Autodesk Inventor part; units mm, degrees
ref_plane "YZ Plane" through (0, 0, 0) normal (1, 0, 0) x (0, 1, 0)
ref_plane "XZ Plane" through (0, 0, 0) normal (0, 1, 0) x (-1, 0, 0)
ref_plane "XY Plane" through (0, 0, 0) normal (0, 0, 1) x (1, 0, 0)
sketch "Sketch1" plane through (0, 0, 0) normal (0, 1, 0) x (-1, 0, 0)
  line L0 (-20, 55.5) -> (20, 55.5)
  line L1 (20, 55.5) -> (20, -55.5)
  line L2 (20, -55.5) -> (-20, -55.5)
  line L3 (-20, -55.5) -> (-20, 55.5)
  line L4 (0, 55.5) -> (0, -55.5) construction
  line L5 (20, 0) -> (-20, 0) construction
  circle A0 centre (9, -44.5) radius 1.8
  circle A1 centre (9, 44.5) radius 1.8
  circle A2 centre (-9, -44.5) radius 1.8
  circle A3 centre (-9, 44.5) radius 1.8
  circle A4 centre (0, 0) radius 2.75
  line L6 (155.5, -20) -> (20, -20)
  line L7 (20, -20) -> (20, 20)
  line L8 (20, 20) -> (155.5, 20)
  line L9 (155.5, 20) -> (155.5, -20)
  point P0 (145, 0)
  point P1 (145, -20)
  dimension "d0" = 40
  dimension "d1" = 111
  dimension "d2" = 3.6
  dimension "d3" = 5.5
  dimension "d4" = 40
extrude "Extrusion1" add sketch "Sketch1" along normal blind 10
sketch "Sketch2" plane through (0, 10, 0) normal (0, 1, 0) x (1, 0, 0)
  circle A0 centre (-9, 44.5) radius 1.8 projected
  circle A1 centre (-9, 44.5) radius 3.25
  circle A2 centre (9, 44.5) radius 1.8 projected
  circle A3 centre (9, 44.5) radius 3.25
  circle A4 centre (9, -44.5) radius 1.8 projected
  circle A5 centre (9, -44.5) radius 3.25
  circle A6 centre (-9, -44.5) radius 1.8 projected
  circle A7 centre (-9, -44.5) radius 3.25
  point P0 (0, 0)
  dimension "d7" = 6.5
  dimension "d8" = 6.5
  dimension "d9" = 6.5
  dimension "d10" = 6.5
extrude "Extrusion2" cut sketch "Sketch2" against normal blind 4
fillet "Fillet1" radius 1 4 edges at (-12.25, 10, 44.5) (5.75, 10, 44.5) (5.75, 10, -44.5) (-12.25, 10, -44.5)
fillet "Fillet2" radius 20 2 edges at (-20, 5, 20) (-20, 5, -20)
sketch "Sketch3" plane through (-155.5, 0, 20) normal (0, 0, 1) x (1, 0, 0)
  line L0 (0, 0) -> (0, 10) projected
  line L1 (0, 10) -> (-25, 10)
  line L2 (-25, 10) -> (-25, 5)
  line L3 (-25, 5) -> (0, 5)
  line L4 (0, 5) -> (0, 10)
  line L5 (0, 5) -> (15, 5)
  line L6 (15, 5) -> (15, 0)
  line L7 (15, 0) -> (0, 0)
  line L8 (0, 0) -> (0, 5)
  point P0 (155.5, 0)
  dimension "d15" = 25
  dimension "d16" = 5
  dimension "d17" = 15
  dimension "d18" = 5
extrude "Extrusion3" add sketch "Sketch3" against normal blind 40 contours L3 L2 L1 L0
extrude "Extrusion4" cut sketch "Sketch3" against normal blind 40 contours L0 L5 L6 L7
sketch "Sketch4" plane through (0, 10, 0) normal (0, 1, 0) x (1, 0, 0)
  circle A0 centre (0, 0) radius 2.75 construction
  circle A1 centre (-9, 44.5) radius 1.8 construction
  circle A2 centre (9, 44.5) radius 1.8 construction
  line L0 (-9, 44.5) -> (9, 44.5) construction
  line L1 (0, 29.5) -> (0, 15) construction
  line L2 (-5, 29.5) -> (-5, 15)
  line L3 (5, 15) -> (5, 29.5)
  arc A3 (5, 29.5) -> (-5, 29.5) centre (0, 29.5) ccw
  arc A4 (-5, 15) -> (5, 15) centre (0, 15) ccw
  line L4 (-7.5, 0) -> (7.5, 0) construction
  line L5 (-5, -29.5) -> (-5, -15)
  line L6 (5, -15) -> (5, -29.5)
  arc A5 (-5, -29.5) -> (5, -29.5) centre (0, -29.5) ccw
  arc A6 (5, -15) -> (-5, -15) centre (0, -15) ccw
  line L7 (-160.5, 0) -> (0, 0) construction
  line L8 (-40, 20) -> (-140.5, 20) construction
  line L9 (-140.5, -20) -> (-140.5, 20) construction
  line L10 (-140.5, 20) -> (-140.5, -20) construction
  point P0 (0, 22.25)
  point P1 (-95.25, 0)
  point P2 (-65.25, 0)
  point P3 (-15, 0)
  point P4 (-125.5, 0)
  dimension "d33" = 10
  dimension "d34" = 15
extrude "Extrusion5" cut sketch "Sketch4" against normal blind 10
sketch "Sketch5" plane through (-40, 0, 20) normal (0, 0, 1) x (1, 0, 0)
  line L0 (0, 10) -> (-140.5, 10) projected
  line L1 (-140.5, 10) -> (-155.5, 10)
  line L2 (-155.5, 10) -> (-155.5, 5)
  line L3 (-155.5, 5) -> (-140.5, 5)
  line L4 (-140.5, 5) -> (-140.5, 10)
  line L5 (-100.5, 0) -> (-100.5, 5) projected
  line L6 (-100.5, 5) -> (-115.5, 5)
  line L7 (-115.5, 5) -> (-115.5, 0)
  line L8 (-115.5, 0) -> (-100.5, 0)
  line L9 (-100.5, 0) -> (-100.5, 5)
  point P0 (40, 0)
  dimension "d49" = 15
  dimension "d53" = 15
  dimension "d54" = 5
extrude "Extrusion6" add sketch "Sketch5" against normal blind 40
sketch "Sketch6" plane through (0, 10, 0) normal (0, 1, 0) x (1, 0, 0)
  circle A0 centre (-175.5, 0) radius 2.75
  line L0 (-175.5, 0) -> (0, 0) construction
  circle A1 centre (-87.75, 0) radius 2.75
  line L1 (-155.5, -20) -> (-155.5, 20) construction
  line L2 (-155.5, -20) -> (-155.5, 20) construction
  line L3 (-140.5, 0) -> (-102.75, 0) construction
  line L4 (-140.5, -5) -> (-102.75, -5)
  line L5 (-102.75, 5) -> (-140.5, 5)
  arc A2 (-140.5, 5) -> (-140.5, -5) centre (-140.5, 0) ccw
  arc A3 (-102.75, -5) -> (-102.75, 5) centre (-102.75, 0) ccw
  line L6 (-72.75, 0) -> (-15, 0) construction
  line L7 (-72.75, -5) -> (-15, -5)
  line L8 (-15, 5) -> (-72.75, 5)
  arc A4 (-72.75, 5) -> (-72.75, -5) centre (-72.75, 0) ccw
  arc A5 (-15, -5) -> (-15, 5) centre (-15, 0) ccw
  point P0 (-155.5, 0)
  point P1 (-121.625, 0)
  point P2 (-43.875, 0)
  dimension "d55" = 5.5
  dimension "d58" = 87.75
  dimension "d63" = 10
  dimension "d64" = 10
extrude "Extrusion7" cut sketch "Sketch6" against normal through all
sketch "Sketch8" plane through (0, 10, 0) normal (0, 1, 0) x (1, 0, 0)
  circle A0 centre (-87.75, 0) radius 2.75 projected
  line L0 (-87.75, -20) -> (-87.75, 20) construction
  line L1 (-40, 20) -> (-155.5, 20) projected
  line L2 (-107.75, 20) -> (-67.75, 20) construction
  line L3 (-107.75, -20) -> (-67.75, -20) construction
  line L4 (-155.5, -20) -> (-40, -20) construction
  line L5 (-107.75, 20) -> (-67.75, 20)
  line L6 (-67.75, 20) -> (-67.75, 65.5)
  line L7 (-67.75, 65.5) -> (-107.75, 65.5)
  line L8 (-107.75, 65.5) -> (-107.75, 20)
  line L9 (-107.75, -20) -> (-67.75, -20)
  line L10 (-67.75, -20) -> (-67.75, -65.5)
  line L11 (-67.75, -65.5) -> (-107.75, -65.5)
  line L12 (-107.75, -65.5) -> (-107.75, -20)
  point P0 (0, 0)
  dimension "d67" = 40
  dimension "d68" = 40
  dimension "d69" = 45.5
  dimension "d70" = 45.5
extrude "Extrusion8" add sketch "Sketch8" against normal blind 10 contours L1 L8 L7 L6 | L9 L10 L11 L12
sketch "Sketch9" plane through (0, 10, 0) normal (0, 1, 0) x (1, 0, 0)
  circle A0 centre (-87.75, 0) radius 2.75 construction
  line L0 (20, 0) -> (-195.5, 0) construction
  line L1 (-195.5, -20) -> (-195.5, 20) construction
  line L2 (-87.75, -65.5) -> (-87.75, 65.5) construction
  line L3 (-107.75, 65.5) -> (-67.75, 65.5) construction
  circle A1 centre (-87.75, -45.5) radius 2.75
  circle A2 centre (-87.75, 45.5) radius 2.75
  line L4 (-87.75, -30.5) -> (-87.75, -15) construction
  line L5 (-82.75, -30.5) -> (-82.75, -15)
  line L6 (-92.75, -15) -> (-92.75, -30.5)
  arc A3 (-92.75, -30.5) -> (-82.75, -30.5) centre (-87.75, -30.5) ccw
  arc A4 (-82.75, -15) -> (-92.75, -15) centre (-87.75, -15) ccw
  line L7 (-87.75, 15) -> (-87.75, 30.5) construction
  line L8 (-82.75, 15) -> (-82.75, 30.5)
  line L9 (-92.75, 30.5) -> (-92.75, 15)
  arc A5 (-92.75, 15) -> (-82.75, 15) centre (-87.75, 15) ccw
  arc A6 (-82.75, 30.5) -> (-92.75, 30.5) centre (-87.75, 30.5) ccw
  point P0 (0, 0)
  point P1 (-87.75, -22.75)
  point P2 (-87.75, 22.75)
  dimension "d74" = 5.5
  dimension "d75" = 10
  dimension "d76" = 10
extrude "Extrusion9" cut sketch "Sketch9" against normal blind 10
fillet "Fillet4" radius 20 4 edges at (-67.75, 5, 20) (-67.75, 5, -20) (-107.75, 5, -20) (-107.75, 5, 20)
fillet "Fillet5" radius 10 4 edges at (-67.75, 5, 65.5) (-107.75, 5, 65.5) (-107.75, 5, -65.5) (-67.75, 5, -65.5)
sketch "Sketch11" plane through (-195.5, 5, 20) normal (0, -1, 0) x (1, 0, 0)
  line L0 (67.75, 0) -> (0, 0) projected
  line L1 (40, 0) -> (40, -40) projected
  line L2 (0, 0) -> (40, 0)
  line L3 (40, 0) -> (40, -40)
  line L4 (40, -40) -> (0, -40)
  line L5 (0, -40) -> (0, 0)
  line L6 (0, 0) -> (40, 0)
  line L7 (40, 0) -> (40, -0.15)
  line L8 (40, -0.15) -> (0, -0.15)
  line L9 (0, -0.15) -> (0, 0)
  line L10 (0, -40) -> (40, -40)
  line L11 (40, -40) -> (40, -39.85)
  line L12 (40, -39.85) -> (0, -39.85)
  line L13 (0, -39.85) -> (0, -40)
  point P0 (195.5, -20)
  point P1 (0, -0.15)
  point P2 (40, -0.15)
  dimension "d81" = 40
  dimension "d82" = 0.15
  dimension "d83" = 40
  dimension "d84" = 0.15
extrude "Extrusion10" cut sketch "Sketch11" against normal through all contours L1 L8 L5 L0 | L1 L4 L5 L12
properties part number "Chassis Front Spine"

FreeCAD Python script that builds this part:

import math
import FreeCAD as App
import Part
import Sketcher


def edges_at(feature, points):
    """Names of the edges that pass closest to the given points."""
    edges = feature.Shape.Edges
    near = lambda p: min(range(len(edges)), key=lambda i: edges[i].distToShape(Part.Vertex(*p))[0])
    return sorted({f"Edge{near(p) + 1}" for p in points})

doc = App.newDocument("Part")
params = doc.addObject("Spreadsheet::Sheet", "Params")
for row, (alias, value) in enumerate([
    ("sketch1_diameter", "3.6 mm"),
    ("sketch1_diameter2", "5.5 mm"),
    ("sketch1_width", "40 mm"),
    ("sketch1_height", "111 mm"),
    ("sketch1_width2", "135.5 mm"),
    ("pad1_length", "10 mm"),
    ("sketch2_diameter", "6.5 mm"),
    ("sketch2_diameter2", "3.6 mm"),
    ("pocket1_length", "4 mm"),
    ("fillet_radius", "1 mm"),
    ("fillet2_radius", "20 mm"),
    ("sketch3_width", "25 mm"),
    ("sketch3_height", "5 mm"),
    ("pad2_length", "40 mm"),
    ("sketch4_width", "15 mm"),
    ("sketch4_height", "5 mm"),
    ("pocket2_length", "40 mm"),
    ("sketch5_radius", "5 mm"),
    ("sketch5_height", "14.5 mm"),
    ("pocket3_length", "10 mm"),
    ("sketch6_width", "15 mm"),
    ("sketch6_height", "5 mm"),
    ("pad3_length", "40 mm"),
    ("sketch7_radius", "5 mm"),
    ("sketch7_diameter", "5.5 mm"),
    ("sketch8_width", "40 mm"),
    ("sketch8_height", "45.5 mm"),
    ("pad4_length", "10 mm"),
    ("sketch9_radius", "5 mm"),
    ("sketch9_diameter", "5.5 mm"),
    ("sketch9_height", "15.5 mm"),
    ("pocket5_length", "10 mm"),
    ("fillet3_radius", "20 mm"),
    ("fillet4_radius", "10 mm"),
    ("sketch10_width", "40 mm"),
    ("sketch10_height", "0.15 mm"),
], start=1):
    params.set(f"A{row}", alias)
    params.set(f"B{row}", "=" + value)
    params.setAlias(f"B{row}", alias)

body = doc.addObject("PartDesign::Body", "Body")

sketch1 = doc.addObject("Sketcher::SketchObject", "Sketch")
body.addObject(sketch1)
sketch1.AttachmentSupport = (doc.XZ_Plane, [""])
sketch1.MapMode = "FlatFace"
sketch1.addGeometry(Part.LineSegment(App.Vector(-20, 55.5, 0), App.Vector(20, 55.5, 0)), False)
sketch1.addGeometry(Part.LineSegment(App.Vector(20, 55.5, 0), App.Vector(20, -55.5, 0)), False)
sketch1.addGeometry(Part.LineSegment(App.Vector(20, -55.5, 0), App.Vector(-20, -55.5, 0)), False)
sketch1.addGeometry(Part.LineSegment(App.Vector(-20, -55.5, 0), App.Vector(-20, -20, 0)), False)
sketch1.addGeometry(Part.LineSegment(App.Vector(-20, -20, 0), App.Vector(-155.5, -20, 0)), False)
sketch1.addGeometry(Part.LineSegment(App.Vector(-155.5, -20, 0), App.Vector(-155.5, 20, 0)), False)
sketch1.addGeometry(Part.LineSegment(App.Vector(-155.5, 20, 0), App.Vector(-20, 20, 0)), False)
sketch1.addGeometry(Part.LineSegment(App.Vector(-20, 20, 0), App.Vector(-20, 55.5, 0)), False)
sketch1.addGeometry(Part.Circle(App.Vector(9, -44.5, 0), App.Vector(0, 0, 1), 1.8), False)
sketch1.addGeometry(Part.Circle(App.Vector(-9, -44.5, 0), App.Vector(0, 0, 1), 1.8), False)
sketch1.addGeometry(Part.Circle(App.Vector(0, 0, 0), App.Vector(0, 0, 1), 2.8), False)
sketch1.addGeometry(Part.Circle(App.Vector(9, 44.5, 0), App.Vector(0, 0, 1), 1.8), False)
sketch1.addGeometry(Part.Circle(App.Vector(-9, 44.5, 0), App.Vector(0, 0, 1), 1.8), False)
sketch1.addConstraint(Sketcher.Constraint("Coincident", 0, 2, 1, 1))
sketch1.addConstraint(Sketcher.Constraint("Coincident", 1, 2, 2, 1))
sketch1.addConstraint(Sketcher.Constraint("Coincident", 2, 2, 3, 1))
sketch1.addConstraint(Sketcher.Constraint("Coincident", 3, 2, 4, 1))
sketch1.addConstraint(Sketcher.Constraint("Coincident", 4, 2, 5, 1))
sketch1.addConstraint(Sketcher.Constraint("Coincident", 5, 2, 6, 1))
sketch1.addConstraint(Sketcher.Constraint("Coincident", 6, 2, 7, 1))
sketch1.addConstraint(Sketcher.Constraint("Coincident", 7, 2, 0, 1))
sketch1.addConstraint(Sketcher.Constraint("Horizontal", 0))
sketch1.addConstraint(Sketcher.Constraint("Vertical", 1))
sketch1.addConstraint(Sketcher.Constraint("Horizontal", 2))
sketch1.addConstraint(Sketcher.Constraint("Vertical", 3))
sketch1.addConstraint(Sketcher.Constraint("Horizontal", 4))
sketch1.addConstraint(Sketcher.Constraint("Vertical", 5))
sketch1.addConstraint(Sketcher.Constraint("Horizontal", 6))
sketch1.addConstraint(Sketcher.Constraint("Vertical", 7))
sketch1.addConstraint(Sketcher.Constraint("Coincident", 10, 3, -1, 1))
sketch1.addConstraint(Sketcher.Constraint("Equal", 8, 9))
sketch1.addConstraint(Sketcher.Constraint("Equal", 9, 11))
sketch1.addConstraint(Sketcher.Constraint("Equal", 11, 12))
sketch1.addConstraint(Sketcher.Constraint("Symmetric", 9, 3, 11, 3, -1, 1))
sketch1.addConstraint(Sketcher.Constraint("Symmetric", 8, 3, 12, 3, -1, 1))
sketch1.addConstraint(Sketcher.Constraint("Symmetric", 0, 2, 2, 2, -1, 1))
sketch1.addConstraint(Sketcher.Constraint("Symmetric", 8, 3, 9, 3, -2))
sketch1.addConstraint(Sketcher.Constraint("Symmetric", 3, 2, 6, 2, -1))
sketch1.addConstraint(Sketcher.Constraint("Equal", 2, 5))
sketch1.addConstraint(Sketcher.Constraint("Diameter", 8, 3.6))
sketch1.addConstraint(Sketcher.Constraint("Diameter", 10, 5.5))
sketch1.addConstraint(Sketcher.Constraint("DistanceX", 0, 1, 0, 2, 40.0))
sketch1.addConstraint(Sketcher.Constraint("DistanceY", 1, 2, 1, 1, 111.0))
sketch1.addConstraint(Sketcher.Constraint("DistanceX", 4, 2, 4, 1, 135.5))
sketch1.addConstraint(Sketcher.Constraint("DistanceX", -1, 1, 8, 3, 9.0))
sketch1.addConstraint(Sketcher.Constraint("DistanceY", 8, 3, 11, 3, 89.0))
sketch1.setExpression("Constraints[26]", "Params.sketch1_diameter")
sketch1.setExpression("Constraints[27]", "Params.sketch1_diameter2")
sketch1.setExpression("Constraints[28]", "Params.sketch1_width")
sketch1.setExpression("Constraints[29]", "Params.sketch1_height")
sketch1.setExpression("Constraints[30]", "Params.sketch1_width2")
pad1 = doc.addObject("PartDesign::Pad", "Pad")
body.addObject(pad1)
pad1.Profile = sketch1
pad1.setExpression("Length", "Params.pad1_length")
pad1.Reversed = True

sketch2 = doc.addObject("Sketcher::SketchObject", "Sketch001")
body.addObject(sketch2)
sketch2.AttachmentSupport = (doc.XZ_Plane, [""])
sketch2.MapMode = "FlatFace"
sketch2.AttachmentOffset = App.Placement(App.Vector(0, 0, -10), App.Rotation())
sketch2.addGeometry(Part.Circle(App.Vector(-9, -44.5, 0), App.Vector(0, 0, 1), 3.2), False)
sketch2.addGeometry(Part.Circle(App.Vector(-9, -44.5, 0), App.Vector(0, 0, 1), 1.8), False)
sketch2.addGeometry(Part.Circle(App.Vector(9, -44.5, 0), App.Vector(0, 0, 1), 3.2), False)
sketch2.addGeometry(Part.Circle(App.Vector(9, -44.5, 0), App.Vector(0, 0, 1), 1.8), False)
sketch2.addGeometry(Part.Circle(App.Vector(9, 44.5, 0), App.Vector(0, 0, 1), 3.2), False)
sketch2.addGeometry(Part.Circle(App.Vector(9, 44.5, 0), App.Vector(0, 0, 1), 1.8), False)
sketch2.addGeometry(Part.Circle(App.Vector(-9, 44.5, 0), App.Vector(0, 0, 1), 3.2), False)
sketch2.addGeometry(Part.Circle(App.Vector(-9, 44.5, 0), App.Vector(0, 0, 1), 1.8), False)
sketch2.addConstraint(Sketcher.Constraint("Coincident", 1, 3, 0, 3))
sketch2.addConstraint(Sketcher.Constraint("Coincident", 3, 3, 2, 3))
sketch2.addConstraint(Sketcher.Constraint("Coincident", 5, 3, 4, 3))
sketch2.addConstraint(Sketcher.Constraint("Coincident", 7, 3, 6, 3))
sketch2.addConstraint(Sketcher.Constraint("Equal", 0, 2))
sketch2.addConstraint(Sketcher.Constraint("Equal", 1, 3))
sketch2.addConstraint(Sketcher.Constraint("Equal", 2, 4))
sketch2.addConstraint(Sketcher.Constraint("Equal", 3, 5))
sketch2.addConstraint(Sketcher.Constraint("Equal", 4, 6))
sketch2.addConstraint(Sketcher.Constraint("Equal", 5, 7))
sketch2.addConstraint(Sketcher.Constraint("Symmetric", 0, 3, 4, 3, -1, 1))
sketch2.addConstraint(Sketcher.Constraint("Symmetric", 2, 3, 6, 3, -1, 1))
sketch2.addConstraint(Sketcher.Constraint("Symmetric", 0, 3, 2, 3, -2))
sketch2.addConstraint(Sketcher.Constraint("Diameter", 0, 6.5))
sketch2.addConstraint(Sketcher.Constraint("Diameter", 1, 3.6))
sketch2.addConstraint(Sketcher.Constraint("DistanceX", 0, 3, -1, 1, 9.0))
sketch2.addConstraint(Sketcher.Constraint("DistanceY", 2, 3, 4, 3, 89.0))
sketch2.setExpression("Constraints[13]", "Params.sketch2_diameter")
sketch2.setExpression("Constraints[14]", "Params.sketch2_diameter2")
pocket1 = doc.addObject("PartDesign::Pocket", "Pocket")
body.addObject(pocket1)
pocket1.Profile = sketch2
pocket1.setExpression("Length", "Params.pocket1_length")
pocket1.Reversed = True
doc.recompute()

fillet = doc.addObject("PartDesign::Fillet", "Fillet")
body.addObject(fillet)
fillet.Base = (pocket1, edges_at(pocket1, [
    (-12.25, 10, 44.5),
    (5.75, 10, 44.5),
    (5.75, 10, -44.5),
    (-12.25, 10, -44.5),
]))
fillet.setExpression("Radius", "Params.fillet_radius")
doc.recompute()

fillet2 = doc.addObject("PartDesign::Fillet", "Fillet001")
body.addObject(fillet2)
fillet2.Base = (fillet, edges_at(fillet, [(-20, 5, 20), (-20, 5, -20)]))
fillet2.setExpression("Radius", "Params.fillet2_radius")

sketch3 = doc.addObject("Sketcher::SketchObject", "Sketch002")
body.addObject(sketch3)
sketch3.AttachmentSupport = (doc.XY_Plane, [""])
sketch3.MapMode = "FlatFace"
sketch3.AttachmentOffset = App.Placement(App.Vector(0, 0, 20), App.Rotation())
sketch3.addGeometry(Part.LineSegment(App.Vector(-180, 5, 0), App.Vector(-156, 5, 0)), False)
sketch3.addGeometry(Part.LineSegment(App.Vector(-156, 5, 0), App.Vector(-156, 10, 0)), False)
sketch3.addGeometry(Part.LineSegment(App.Vector(-156, 10, 0), App.Vector(-180, 10, 0)), False)
sketch3.addGeometry(Part.LineSegment(App.Vector(-180, 10, 0), App.Vector(-180, 5, 0)), False)
sketch3.addConstraint(Sketcher.Constraint("Coincident", 0, 2, 1, 1))
sketch3.addConstraint(Sketcher.Constraint("Coincident", 1, 2, 2, 1))
sketch3.addConstraint(Sketcher.Constraint("Coincident", 2, 2, 3, 1))
sketch3.addConstraint(Sketcher.Constraint("Coincident", 3, 2, 0, 1))
sketch3.addConstraint(Sketcher.Constraint("Horizontal", 0))
sketch3.addConstraint(Sketcher.Constraint("Vertical", 1))
sketch3.addConstraint(Sketcher.Constraint("Horizontal", 2))
sketch3.addConstraint(Sketcher.Constraint("Vertical", 3))
sketch3.addConstraint(Sketcher.Constraint("DistanceX", 0, 1, 0, 2, 25.0))
sketch3.addConstraint(Sketcher.Constraint("DistanceY", 1, 1, 1, 2, 5.0))
sketch3.addConstraint(Sketcher.Constraint("DistanceY", -1, 1, 0, 2, 5.0))
sketch3.addConstraint(Sketcher.Constraint("DistanceX", 0, 2, -1, 1, 155.5))
sketch3.setExpression("Constraints[8]", "Params.sketch3_width")
sketch3.setExpression("Constraints[9]", "Params.sketch3_height")
pad2 = doc.addObject("PartDesign::Pad", "Pad001")
body.addObject(pad2)
pad2.Profile = sketch3
pad2.setExpression("Length", "Params.pad2_length")
pad2.Reversed = True

sketch4 = doc.addObject("Sketcher::SketchObject", "Sketch003")
body.addObject(sketch4)
sketch4.AttachmentSupport = (doc.XY_Plane, [""])
sketch4.MapMode = "FlatFace"
sketch4.AttachmentOffset = App.Placement(App.Vector(0, 0, 20), App.Rotation())
sketch4.addGeometry(Part.LineSegment(App.Vector(-156, 5, 0), App.Vector(-156, 0, 0)), False)
sketch4.addGeometry(Part.LineSegment(App.Vector(-156, 0, 0), App.Vector(-140, 0, 0)), False)
sketch4.addGeometry(Part.LineSegment(App.Vector(-140, 0, 0), App.Vector(-140, 5, 0)), False)
sketch4.addGeometry(Part.LineSegment(App.Vector(-140, 5, 0), App.Vector(-156, 5, 0)), False)
sketch4.addConstraint(Sketcher.Constraint("Coincident", 0, 2, 1, 1))
sketch4.addConstraint(Sketcher.Constraint("Coincident", 1, 2, 2, 1))
sketch4.addConstraint(Sketcher.Constraint("Coincident", 2, 2, 3, 1))
sketch4.addConstraint(Sketcher.Constraint("Coincident", 3, 2, 0, 1))
sketch4.addConstraint(Sketcher.Constraint("Vertical", 0))
sketch4.addConstraint(Sketcher.Constraint("Horizontal", 1))
sketch4.addConstraint(Sketcher.Constraint("Vertical", 2))
sketch4.addConstraint(Sketcher.Constraint("Horizontal", 3))
sketch4.addConstraint(Sketcher.Constraint("PointOnObject", 0, 2, -1))
sketch4.addConstraint(Sketcher.Constraint("DistanceX", 1, 1, 1, 2, 15.0))
sketch4.addConstraint(Sketcher.Constraint("DistanceY", 0, 2, 0, 1, 5.0))
sketch4.addConstraint(Sketcher.Constraint("DistanceX", 0, 2, -1, 1, 155.5))
sketch4.setExpression("Constraints[9]", "Params.sketch4_width")
sketch4.setExpression("Constraints[10]", "Params.sketch4_height")
pocket2 = doc.addObject("PartDesign::Pocket", "Pocket001")
body.addObject(pocket2)
pocket2.Profile = sketch4
pocket2.setExpression("Length", "Params.pocket2_length")

sketch5 = doc.addObject("Sketcher::SketchObject", "Sketch004")
body.addObject(sketch5)
sketch5.AttachmentSupport = (doc.XZ_Plane, [""])
sketch5.MapMode = "FlatFace"
sketch5.AttachmentOffset = App.Placement(App.Vector(0, 0, -10), App.Rotation())
sketch5.addGeometry(Part.ArcOfCircle(Part.Circle(App.Vector(0, -30, 0), App.Vector(0, 0, 1), 5), math.radians(180), math.radians(360)), False)
sketch5.addGeometry(Part.LineSegment(App.Vector(-5, -30, 0), App.Vector(-5, -15, 0)), False)
sketch5.addGeometry(Part.ArcOfCircle(Part.Circle(App.Vector(0, -15, 0), App.Vector(0, 0, 1), 5), math.radians(0), math.radians(180)), False)
sketch5.addGeometry(Part.LineSegment(App.Vector(5, -15, 0), App.Vector(5, -30, 0)), False)
sketch5.addGeometry(Part.LineSegment(App.Vector(-5, 15, 0), App.Vector(-5, 30, 0)), False)
sketch5.addGeometry(Part.ArcOfCircle(Part.Circle(App.Vector(0, 30, 0), App.Vector(0, 0, 1), 5), math.radians(0), math.radians(180)), False)
sketch5.addGeometry(Part.LineSegment(App.Vector(5, 30, 0), App.Vector(5, 15, 0)), False)
sketch5.addGeometry(Part.ArcOfCircle(Part.Circle(App.Vector(0, 15, 0), App.Vector(0, 0, 1), 5), math.radians(180), math.radians(360)), False)
sketch5.addConstraint(Sketcher.Constraint("Tangent", 0, 1, 1, 1))
sketch5.addConstraint(Sketcher.Constraint("Tangent", 1, 2, 2, 2))
sketch5.addConstraint(Sketcher.Constraint("Tangent", 2, 1, 3, 1))
sketch5.addConstraint(Sketcher.Constraint("Tangent", 3, 2, 0, 2))
sketch5.addConstraint(Sketcher.Constraint("Tangent", 4, 2, 5, 2))
sketch5.addConstraint(Sketcher.Constraint("Tangent", 5, 1, 6, 1))
sketch5.addConstraint(Sketcher.Constraint("Tangent", 6, 2, 7, 2))
sketch5.addConstraint(Sketcher.Constraint("Tangent", 7, 1, 4, 1))
sketch5.addConstraint(Sketcher.Constraint("Vertical", 1))
sketch5.addConstraint(Sketcher.Constraint("Vertical", 3))
sketch5.addConstraint(Sketcher.Constraint("Vertical", 4))
sketch5.addConstraint(Sketcher.Constraint("Vertical", 6))
sketch5.addConstraint(Sketcher.Constraint("Equal", 2, 5))
sketch5.addConstraint(Sketcher.Constraint("Symmetric", 0, 3, 5, 3, -1, 1))
sketch5.addConstraint(Sketcher.Constraint("Symmetric", 2, 3, 7, 3, -1))
sketch5.addConstraint(Sketcher.Constraint("Radius", 0, 5.0))
sketch5.addConstraint(Sketcher.Constraint("DistanceY", 2, 3, -1, 1, 15.0))
sketch5.addConstraint(Sketcher.Constraint("DistanceY", 1, 1, 1, 2, 14.5))
sketch5.setExpression("Constraints[15]", "Params.sketch5_radius")
sketch5.setExpression("Constraints[17]", "Params.sketch5_height")
pocket3 = doc.addObject("PartDesign::Pocket", "Pocket002")
body.addObject(pocket3)
pocket3.Profile = sketch5
pocket3.setExpression("Length", "Params.pocket3_length")
pocket3.Reversed = True

sketch6 = doc.addObject("Sketcher::SketchObject", "Sketch005")
body.addObject(sketch6)
sketch6.AttachmentSupport = (doc.XY_Plane, [""])
sketch6.MapMode = "FlatFace"
sketch6.AttachmentOffset = App.Placement(App.Vector(0, 0, 20), App.Rotation())
sketch6.addGeometry(Part.LineSegment(App.Vector(-180, 5, 0), App.Vector(-180, 10, 0)), False)
sketch6.addGeometry(Part.LineSegment(App.Vector(-180, 10, 0), App.Vector(-196, 10, 0)), False)
sketch6.addGeometry(Part.LineSegment(App.Vector(-196, 10, 0), App.Vector(-196, 5, 0)), False)
sketch6.addGeometry(Part.LineSegment(App.Vector(-196, 5, 0), App.Vector(-180, 5, 0)), False)
sketch6.addGeometry(Part.LineSegment(App.Vector(-156, 0, 0), App.Vector(-140, 0, 0)), False)
sketch6.addGeometry(Part.LineSegment(App.Vector(-140, 0, 0), App.Vector(-140, 5, 0)), False)
sketch6.addGeometry(Part.LineSegment(App.Vector(-140, 5, 0), App.Vector(-156, 5, 0)), False)
sketch6.addGeometry(Part.LineSegment(App.Vector(-156, 5, 0), App.Vector(-156, 0, 0)), False)
sketch6.addConstraint(Sketcher.Constraint("Coincident", 0, 2, 1, 1))
sketch6.addConstraint(Sketcher.Constraint("Coincident", 1, 2, 2, 1))
sketch6.addConstraint(Sketcher.Constraint("Coincident", 2, 2, 3, 1))
sketch6.addConstraint(Sketcher.Constraint("Coincident", 3, 2, 0, 1))
sketch6.addConstraint(Sketcher.Constraint("Coincident", 4, 2, 5, 1))
sketch6.addConstraint(Sketcher.Constraint("Coincident", 5, 2, 6, 1))
sketch6.addConstraint(Sketcher.Constraint("Coincident", 6, 2, 7, 1))
sketch6.addConstraint(Sketcher.Constraint("Coincident", 7, 2, 4, 1))
sketch6.addConstraint(Sketcher.Constraint("Vertical", 0))
sketch6.addConstraint(Sketcher.Constraint("Horizontal", 1))
sketch6.addConstraint(Sketcher.Constraint("Vertical", 2))
sketch6.addConstraint(Sketcher.Constraint("Horizontal", 3))
sketch6.addConstraint(Sketcher.Constraint("Horizontal", 4))
sketch6.addConstraint(Sketcher.Constraint("Vertical", 5))
sketch6.addConstraint(Sketcher.Constraint("Horizontal", 6))
sketch6.addConstraint(Sketcher.Constraint("Vertical", 7))
sketch6.addConstraint(Sketcher.Constraint("PointOnObject", 4, 2, -1))
sketch6.addConstraint(Sketcher.Constraint("Horizontal", 3, 2, 5, 2))
sketch6.addConstraint(Sketcher.Constraint("Equal", 3, 4))
sketch6.addConstraint(Sketcher.Constraint("Equal", 2, 5))
sketch6.addConstraint(Sketcher.Constraint("DistanceX", 1, 2, 1, 1, 15.0))
sketch6.addConstraint(Sketcher.Constraint("DistanceY", 0, 1, 0, 2, 5.0))
sketch6.addConstraint(Sketcher.Constraint("DistanceX", 3, 2, 4, 2, 40.0))
sketch6.addConstraint(Sketcher.Constraint("DistanceX", 0, 2, -1, 1, 180.5))
sketch6.setExpression("Constraints[20]", "Params.sketch6_width")
sketch6.setExpression("Constraints[21]", "Params.sketch6_height")
pad3 = doc.addObject("PartDesign::Pad", "Pad002")
body.addObject(pad3)
pad3.Profile = sketch6
pad3.setExpression("Length", "Params.pad3_length")
pad3.Reversed = True

sketch7 = doc.addObject("Sketcher::SketchObject", "Sketch006")
body.addObject(sketch7)
sketch7.AttachmentSupport = (doc.XZ_Plane, [""])
sketch7.MapMode = "FlatFace"
sketch7.AttachmentOffset = App.Placement(App.Vector(0, 0, -10), App.Rotation())
sketch7.addGeometry(Part.Circle(App.Vector(-175.5, 0, 0), App.Vector(0, 0, 1), 2.8), False)
sketch7.addGeometry(Part.Circle(App.Vector(-87.8, 0, 0), App.Vector(0, 0, 1), 2.8), False)
sketch7.addGeometry(Part.ArcOfCircle(Part.Circle(App.Vector(-140.5, 0, 0), App.Vector(0, 0, 1), 5), math.radians(90), math.radians(270)), False)
sketch7.addGeometry(Part.LineSegment(App.Vector(-140.5, 5, 0), App.Vector(-102.8, 5, 0)), False)
sketch7.addGeometry(Part.ArcOfCircle(Part.Circle(App.Vector(-102.8, 0, 0), App.Vector(0, 0, 1), 5), math.radians(-90), math.radians(90)), False)
sketch7.addGeometry(Part.LineSegment(App.Vector(-102.8, -5, 0), App.Vector(-140.5, -5, 0)), False)
sketch7.addGeometry(Part.ArcOfCircle(Part.Circle(App.Vector(-72.8, 0, 0), App.Vector(0, 0, 1), 5), math.radians(90), math.radians(270)), False)
sketch7.addGeometry(Part.LineSegment(App.Vector(-72.8, 5, 0), App.Vector(-15, 5, 0)), False)
sketch7.addGeometry(Part.ArcOfCircle(Part.Circle(App.Vector(-15, 0, 0), App.Vector(0, 0, 1), 5), math.radians(-90), math.radians(90)), False)
sketch7.addGeometry(Part.LineSegment(App.Vector(-15, -5, 0), App.Vector(-72.8, -5, 0)), False)
sketch7.addConstraint(Sketcher.Constraint("Tangent", 2, 1, 3, 1))
sketch7.addConstraint(Sketcher.Constraint("Tangent", 3, 2, 4, 2))
sketch7.addConstraint(Sketcher.Constraint("Tangent", 4, 1, 5, 1))
sketch7.addConstraint(Sketcher.Constraint("Tangent", 5, 2, 2, 2))
sketch7.addConstraint(Sketcher.Constraint("Tangent", 6, 1, 7, 1))
sketch7.addConstraint(Sketcher.Constraint("Tangent", 7, 2, 8, 2))
sketch7.addConstraint(Sketcher.Constraint("Tangent", 8, 1, 9, 1))
sketch7.addConstraint(Sketcher.Constraint("Tangent", 9, 2, 6, 2))
sketch7.addConstraint(Sketcher.Constraint("Horizontal", 3))
sketch7.addConstraint(Sketcher.Constraint("Horizontal", 5))
sketch7.addConstraint(Sketcher.Constraint("Horizontal", 7))
sketch7.addConstraint(Sketcher.Constraint("Horizontal", 9))
sketch7.addConstraint(Sketcher.Constraint("Equal", 0, 1))
sketch7.addConstraint(Sketcher.Constraint("Equal", 4, 6))
sketch7.addConstraint(Sketcher.Constraint("PointOnObject", 0, 3, -1))
sketch7.addConstraint(Sketcher.Constraint("PointOnObject", 1, 3, -1))
sketch7.addConstraint(Sketcher.Constraint("PointOnObject", 2, 3, -1))
sketch7.addConstraint(Sketcher.Constraint("PointOnObject", 6, 3, -1))
sketch7.addConstraint(Sketcher.Constraint("Radius", 2, 5.0))
sketch7.addConstraint(Sketcher.Constraint("Diameter", 0, 5.5))
sketch7.addConstraint(Sketcher.Constraint("DistanceX", 1, 3, -1, 1, 87.75))
sketch7.addConstraint(Sketcher.Constraint("DistanceX", 0, 3, 1, 3, 87.75))
sketch7.addConstraint(Sketcher.Constraint("DistanceX", 4, 3, 8, 3, 87.75))
sketch7.addConstraint(Sketcher.Constraint("DistanceX", 8, 3, -1, 1, 15.0))
sketch7.addConstraint(Sketcher.Constraint("DistanceX", 0, 3, 2, 3, 35.0))
sketch7.addConstraint(Sketcher.Constraint("DistanceX", 1, 3, 6, 3, 15.0))
sketch7.setExpression("Constraints[18]", "Params.sketch7_radius")
sketch7.setExpression("Constraints[19]", "Params.sketch7_diameter")
pocket4 = doc.addObject("PartDesign::Pocket", "Pocket003")
body.addObject(pocket4)
pocket4.Profile = sketch7
pocket4.Type = "ThroughAll"
pocket4.Reversed = True

sketch8 = doc.addObject("Sketcher::SketchObject", "Sketch007")
body.addObject(sketch8)
sketch8.AttachmentSupport = (doc.XZ_Plane, [""])
sketch8.MapMode = "FlatFace"
sketch8.AttachmentOffset = App.Placement(App.Vector(0, 0, -10), App.Rotation())
sketch8.addGeometry(Part.LineSegment(App.Vector(-108, -20, 0), App.Vector(-68, -20, 0)), False)
sketch8.addGeometry(Part.LineSegment(App.Vector(-68, -20, 0), App.Vector(-68, -66, 0)), False)
sketch8.addGeometry(Part.LineSegment(App.Vector(-68, -66, 0), App.Vector(-108, -66, 0)), False)
sketch8.addGeometry(Part.LineSegment(App.Vector(-108, -66, 0), App.Vector(-108, -20, 0)), False)
sketch8.addGeometry(Part.LineSegment(App.Vector(-68, 20, 0), App.Vector(-108, 20, 0)), False)
sketch8.addGeometry(Part.LineSegment(App.Vector(-108, 20, 0), App.Vector(-108, 66, 0)), False)
sketch8.addGeometry(Part.LineSegment(App.Vector(-108, 66, 0), App.Vector(-68, 66, 0)), False)
sketch8.addGeometry(Part.LineSegment(App.Vector(-68, 66, 0), App.Vector(-68, 20, 0)), False)
sketch8.addConstraint(Sketcher.Constraint("Coincident", 0, 2, 1, 1))
sketch8.addConstraint(Sketcher.Constraint("Coincident", 1, 2, 2, 1))
sketch8.addConstraint(Sketcher.Constraint("Coincident", 2, 2, 3, 1))
sketch8.addConstraint(Sketcher.Constraint("Coincident", 3, 2, 0, 1))
sketch8.addConstraint(Sketcher.Constraint("Coincident", 4, 2, 5, 1))
sketch8.addConstraint(Sketcher.Constraint("Coincident", 5, 2, 6, 1))
sketch8.addConstraint(Sketcher.Constraint("Coincident", 6, 2, 7, 1))
sketch8.addConstraint(Sketcher.Constraint("Coincident", 7, 2, 4, 1))
sketch8.addConstraint(Sketcher.Constraint("Horizontal", 0))
sketch8.addConstraint(Sketcher.Constraint("Vertical", 1))
sketch8.addConstraint(Sketcher.Constraint("Horizontal", 2))
sketch8.addConstraint(Sketcher.Constraint("Vertical", 3))
sketch8.addConstraint(Sketcher.Constraint("Horizontal", 4))
sketch8.addConstraint(Sketcher.Constraint("Vertical", 5))
sketch8.addConstraint(Sketcher.Constraint("Horizontal", 6))
sketch8.addConstraint(Sketcher.Constraint("Vertical", 7))
sketch8.addConstraint(Sketcher.Constraint("Symmetric", 3, 2, 4, 2, -1))
sketch8.addConstraint(Sketcher.Constraint("Symmetric", 1, 2, 6, 2, -1))
sketch8.addConstraint(Sketcher.Constraint("DistanceX", 0, 1, 0, 2, 40.0))
sketch8.addConstraint(Sketcher.Constraint("DistanceY", 1, 2, 1, 1, 45.5))
sketch8.addConstraint(Sketcher.Constraint("DistanceY", 3, 2, 4, 2, 40.0))
sketch8.addConstraint(Sketcher.Constraint("DistanceX", 0, 2, -1, 1, 67.75))
sketch8.setExpression("Constraints[18]", "Params.sketch8_width")
sketch8.setExpression("Constraints[19]", "Params.sketch8_height")
pad4 = doc.addObject("PartDesign::Pad", "Pad003")
body.addObject(pad4)
pad4.Profile = sketch8
pad4.setExpression("Length", "Params.pad4_length")

sketch9 = doc.addObject("Sketcher::SketchObject", "Sketch008")
body.addObject(sketch9)
sketch9.AttachmentSupport = (doc.XZ_Plane, [""])
sketch9.MapMode = "FlatFace"
sketch9.AttachmentOffset = App.Placement(App.Vector(0, 0, -10), App.Rotation())
sketch9.addGeometry(Part.Circle(App.Vector(-87.8, 45.5, 0), App.Vector(0, 0, 1), 2.8), False)
sketch9.addGeometry(Part.Circle(App.Vector(-87.8, -45.5, 0), App.Vector(0, 0, 1), 2.8), False)
sketch9.addGeometry(Part.ArcOfCircle(Part.Circle(App.Vector(-87.8, 30.5, 0), App.Vector(0, 0, 1), 5), math.radians(0), math.radians(180)), False)
sketch9.addGeometry(Part.LineSegment(App.Vector(-82.8, 30.5, 0), App.Vector(-82.8, 15, 0)), False)
sketch9.addGeometry(Part.ArcOfCircle(Part.Circle(App.Vector(-87.8, 15, 0), App.Vector(0, 0, 1), 5), math.radians(180), math.radians(360)), False)
sketch9.addGeometry(Part.LineSegment(App.Vector(-92.8, 15, 0), App.Vector(-92.8, 30.5, 0)), False)
sketch9.addGeometry(Part.ArcOfCircle(Part.Circle(App.Vector(-87.8, -15, 0), App.Vector(0, 0, 1), 5), math.radians(0), math.radians(180)), False)
sketch9.addGeometry(Part.LineSegment(App.Vector(-82.8, -15, 0), App.Vector(-82.8, -30.5, 0)), False)
sketch9.addGeometry(Part.ArcOfCircle(Part.Circle(App.Vector(-87.8, -30.5, 0), App.Vector(0, 0, 1), 5), math.radians(180), math.radians(360)), False)
sketch9.addGeometry(Part.LineSegment(App.Vector(-92.8, -30.5, 0), App.Vector(-92.8, -15, 0)), False)
sketch9.addConstraint(Sketcher.Constraint("Tangent", 2, 1, 3, 1))
sketch9.addConstraint(Sketcher.Constraint("Tangent", 3, 2, 4, 2))
sketch9.addConstraint(Sketcher.Constraint("Tangent", 4, 1, 5, 1))
sketch9.addConstraint(Sketcher.Constraint("Tangent", 5, 2, 2, 2))
sketch9.addConstraint(Sketcher.Constraint("Tangent", 6, 1, 7, 1))
sketch9.addConstraint(Sketcher.Constraint("Tangent", 7, 2, 8, 2))
sketch9.addConstraint(Sketcher.Constraint("Tangent", 8, 1, 9, 1))
sketch9.addConstraint(Sketcher.Constraint("Tangent", 9, 2, 6, 2))
sketch9.addConstraint(Sketcher.Constraint("Vertical", 3))
sketch9.addConstraint(Sketcher.Constraint("Vertical", 5))
sketch9.addConstraint(Sketcher.Constraint("Vertical", 7))
sketch9.addConstraint(Sketcher.Constraint("Vertical", 9))
sketch9.addConstraint(Sketcher.Constraint("Equal", 0, 1))
sketch9.addConstraint(Sketcher.Constraint("Equal", 4, 6))
sketch9.addConstraint(Sketcher.Constraint("Symmetric", 0, 3, 1, 3, -1))
sketch9.addConstraint(Sketcher.Constraint("Symmetric", 4, 3, 6, 3, -1))
sketch9.addConstraint(Sketcher.Constraint("Vertical", 1, 3, 2, 3))
sketch9.addConstraint(Sketcher.Constraint("Equal", 5, 7))
sketch9.addConstraint(Sketcher.Constraint("Radius", 2, 5.0))
sketch9.addConstraint(Sketcher.Constraint("Diameter", 0, 5.5))
sketch9.addConstraint(Sketcher.Constraint("DistanceY", 3, 2, 3, 1, 15.5))
sketch9.addConstraint(Sketcher.Constraint("DistanceY", -1, 1, 4, 3, 15.0))
sketch9.addConstraint(Sketcher.Constraint("DistanceY", 1, 3, 0, 3, 91.0))
sketch9.addConstraint(Sketcher.Constraint("DistanceX", 0, 3, -1, 1, 87.75))
sketch9.setExpression("Constraints[18]", "Params.sketch9_radius")
sketch9.setExpression("Constraints[19]", "Params.sketch9_diameter")
sketch9.setExpression("Constraints[20]", "Params.sketch9_height")
pocket5 = doc.addObject("PartDesign::Pocket", "Pocket004")
body.addObject(pocket5)
pocket5.Profile = sketch9
pocket5.setExpression("Length", "Params.pocket5_length")
pocket5.Reversed = True
doc.recompute()

fillet3 = doc.addObject("PartDesign::Fillet", "Fillet002")
body.addObject(fillet3)
fillet3.Base = (pocket5, edges_at(pocket5, [
    (-67.75, 5, 20),
    (-67.75, 5, -20),
    (-107.75, 5, -20),
    (-107.75, 5, 20),
]))
fillet3.setExpression("Radius", "Params.fillet3_radius")
doc.recompute()

fillet4 = doc.addObject("PartDesign::Fillet", "Fillet003")
body.addObject(fillet4)
fillet4.Base = (fillet3, edges_at(fillet3, [
    (-67.75, 5, 65.5),
    (-107.75, 5, 65.5),
    (-107.75, 5, -65.5),
    (-67.75, 5, -65.5),
]))
fillet4.setExpression("Radius", "Params.fillet4_radius")

sketch10 = doc.addObject("Sketcher::SketchObject", "Sketch009")
body.addObject(sketch10)
sketch10.AttachmentSupport = (doc.XZ_Plane, [""])
sketch10.MapMode = "FlatFace"
sketch10.AttachmentOffset = App.Placement(App.Vector(0, 0, -5), App.Rotation())
sketch10.addGeometry(Part.LineSegment(App.Vector(-155.5, 19.85, 0), App.Vector(-155.5, 20, 0)), False)
sketch10.addGeometry(Part.LineSegment(App.Vector(-155.5, 20, 0), App.Vector(-195.5, 20, 0)), False)
sketch10.addGeometry(Part.LineSegment(App.Vector(-195.5, 20, 0), App.Vector(-195.5, 19.85, 0)), False)
sketch10.addGeometry(Part.LineSegment(App.Vector(-195.5, 19.85, 0), App.Vector(-155.5, 19.85, 0)), False)
sketch10.addGeometry(Part.LineSegment(App.Vector(-155.5, -20, 0), App.Vector(-155.5, -19.85, 0)), False)
sketch10.addGeometry(Part.LineSegment(App.Vector(-155.5, -19.85, 0), App.Vector(-195.5, -19.85, 0)), False)
sketch10.addGeometry(Part.LineSegment(App.Vector(-195.5, -19.85, 0), App.Vector(-195.5, -20, 0)), False)
sketch10.addGeometry(Part.LineSegment(App.Vector(-195.5, -20, 0), App.Vector(-155.5, -20, 0)), False)
sketch10.addConstraint(Sketcher.Constraint("Coincident", 0, 2, 1, 1))
sketch10.addConstraint(Sketcher.Constraint("Coincident", 1, 2, 2, 1))
sketch10.addConstraint(Sketcher.Constraint("Coincident", 2, 2, 3, 1))
sketch10.addConstraint(Sketcher.Constraint("Coincident", 3, 2, 0, 1))
sketch10.addConstraint(Sketcher.Constraint("Coincident", 4, 2, 5, 1))
sketch10.addConstraint(Sketcher.Constraint("Coincident", 5, 2, 6, 1))
sketch10.addConstraint(Sketcher.Constraint("Coincident", 6, 2, 7, 1))
sketch10.addConstraint(Sketcher.Constraint("Coincident", 7, 2, 4, 1))
sketch10.addConstraint(Sketcher.Constraint("Vertical", 0))
sketch10.addConstraint(Sketcher.Constraint("Horizontal", 1))
sketch10.addConstraint(Sketcher.Constraint("Vertical", 2))
sketch10.addConstraint(Sketcher.Constraint("Horizontal", 3))
sketch10.addConstraint(Sketcher.Constraint("Vertical", 4))
sketch10.addConstraint(Sketcher.Constraint("Horizontal", 5))
sketch10.addConstraint(Sketcher.Constraint("Vertical", 6))
sketch10.addConstraint(Sketcher.Constraint("Horizontal", 7))
sketch10.addConstraint(Sketcher.Constraint("Symmetric", 3, 2, 4, 2, -1))
sketch10.addConstraint(Sketcher.Constraint("Symmetric", 1, 2, 6, 2, -1))
sketch10.addConstraint(Sketcher.Constraint("DistanceX", 1, 2, 1, 1, 40.0))
sketch10.addConstraint(Sketcher.Constraint("DistanceY", 6, 2, 1, 2, 40.0))
sketch10.addConstraint(Sketcher.Constraint("DistanceY", 0, 1, 0, 2, 0.15))
sketch10.addConstraint(Sketcher.Constraint("DistanceX", 0, 2, -1, 1, 155.5))
sketch10.setExpression("Constraints[18]", "Params.sketch10_width")
sketch10.setExpression("Constraints[20]", "Params.sketch10_height")
pocket6 = doc.addObject("PartDesign::Pocket", "Pocket005")
body.addObject(pocket6)
pocket6.Profile = sketch10
pocket6.Type = "ThroughAll"

doc.recompute()
